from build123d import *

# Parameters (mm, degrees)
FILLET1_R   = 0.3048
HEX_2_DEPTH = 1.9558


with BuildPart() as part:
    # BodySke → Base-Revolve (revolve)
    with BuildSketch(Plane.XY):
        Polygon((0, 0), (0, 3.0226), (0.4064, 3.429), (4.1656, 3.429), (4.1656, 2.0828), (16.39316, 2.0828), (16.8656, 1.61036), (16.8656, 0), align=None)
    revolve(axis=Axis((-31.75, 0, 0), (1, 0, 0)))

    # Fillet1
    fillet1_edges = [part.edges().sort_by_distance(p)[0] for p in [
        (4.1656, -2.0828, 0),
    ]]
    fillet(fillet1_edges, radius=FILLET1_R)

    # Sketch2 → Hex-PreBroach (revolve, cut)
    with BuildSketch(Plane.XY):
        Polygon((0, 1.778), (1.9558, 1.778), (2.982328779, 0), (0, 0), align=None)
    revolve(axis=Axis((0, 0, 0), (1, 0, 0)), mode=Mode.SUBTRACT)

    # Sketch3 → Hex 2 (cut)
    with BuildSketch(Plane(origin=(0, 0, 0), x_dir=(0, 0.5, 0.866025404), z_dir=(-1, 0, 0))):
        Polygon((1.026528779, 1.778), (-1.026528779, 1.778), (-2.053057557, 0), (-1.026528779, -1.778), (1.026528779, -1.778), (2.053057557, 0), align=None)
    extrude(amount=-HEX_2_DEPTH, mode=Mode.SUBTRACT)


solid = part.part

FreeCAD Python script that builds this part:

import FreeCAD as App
import Part
import Sketcher
Q = App.Units.Quantity


def edges_at(feature, points):
    """Names of the edges that pass closest to the given points."""
    edges = feature.Shape.Edges
    near = lambda p: min(range(len(edges)), key=lambda i: edges[i].distToShape(Part.Vertex(*p))[0])
    return sorted({f"Edge{near(p) + 1}" for p in points})


def add_polygon(sketch, points):
    """Adds a closed chain of lines whose ends are joined by coincident constraints."""
    first, n = sketch.GeometryCount, len(points)
    for a, b in zip(points, points[1:] + points[:1]):
        sketch.addGeometry(Part.LineSegment(App.Vector(*a, 0), App.Vector(*b, 0)), False)
    for i in range(n):
        sketch.addConstraint(Sketcher.Constraint("Coincident", first + i, 2, first + (i + 1) % n, 1))

doc = App.newDocument("Part")
body = doc.addObject("PartDesign::Body", "Body")

sketch1 = doc.addObject("Sketcher::SketchObject", "Sketch")
body.addObject(sketch1)
sketch1.AttachmentSupport = (doc.XY_Plane, [""])
sketch1.MapMode = "FlatFace"
add_polygon(sketch1, [(0, 3.0226), (0, 0), (16.8656, 0), (16.8656, 1.61036), (16.39316, 2.0828), (4.1656, 2.0828), (4.1656, 3.429), (0.4064, 3.429)])
sketch1.addConstraint([
    Sketcher.Constraint("Vertical", 0),
    Sketcher.Constraint("Horizontal", 1),
    Sketcher.Constraint("Vertical", 2),
    Sketcher.Constraint("Horizontal", 4),
    Sketcher.Constraint("Vertical", 5),
    Sketcher.Constraint("Horizontal", 6),
    Sketcher.Constraint("Coincident", 0, 2, -1, 1),
    Sketcher.Constraint("Perpendicular", 3, 7),
    Sketcher.Constraint("Angle", 3, Q("135 deg")),
    Sketcher.Constraint("DistanceX", 4, 2, 2, 2, Q("0.5 in")),
    Sketcher.Constraint("DistanceX", 1, 1, 1, 2, Q("0.664 in")),
    Sketcher.Constraint("DistanceX", 6, 2, 6, 1, Q("0.148 in")),
    Sketcher.Constraint("DistanceY", 0, 2, 0, 1, Q("0.119 in")),
    Sketcher.Constraint("DistanceY", 5, 1, 5, 2, Q("0.053 in")),
    Sketcher.Constraint("DistanceX", 4, 2, 4, 1, Q("0.4814 in")),
])
revolution = doc.addObject("PartDesign::Revolution", "Revolution")
body.addObject(revolution)
revolution.Profile = sketch1
revolution.ReferenceAxis = (sketch1, ["H_Axis"])
revolution.Angle = 360
doc.recompute()

fillet = doc.addObject("PartDesign::Fillet", "Fillet")
body.addObject(fillet)
fillet.Base = (revolution, edges_at(revolution, [(4.166, -2.083, 0)]))
fillet.Radius = Q("0.012 in")

sketch2 = doc.addObject("Sketcher::SketchObject", "Sketch001")
body.addObject(sketch2)
sketch2.AttachmentSupport = (doc.XY_Plane, [""])
sketch2.MapMode = "FlatFace"
add_polygon(sketch2, [(1.9558, 1.778), (0, 1.778), (0, 0), (2.982329, 0)])
sketch2.addConstraint([
    Sketcher.Constraint("Horizontal", 0),
    Sketcher.Constraint("Vertical", 1),
    Sketcher.Constraint("Horizontal", 2),
    Sketcher.Constraint("Coincident", 1, 2, -1, 1),
    Sketcher.Constraint("Angle", 3, Q("120 deg")),
    Sketcher.Constraint("DistanceY", 1, 2, 1, 1, Q("0.07 in")),
    Sketcher.Constraint("DistanceX", 0, 2, 0, 1, Q("0.077 in")),
])
groove = doc.addObject("PartDesign::Groove", "Groove")
body.addObject(groove)
groove.Profile = sketch2
groove.ReferenceAxis = (sketch2, ["H_Axis"])
groove.Angle = 360

sketch3 = doc.addObject("Sketcher::SketchObject", "Sketch002")
body.addObject(sketch3)
sketch3.AttachmentSupport = (doc.YZ_Plane, [""])
sketch3.MapMode = "FlatFace"
add_polygon(sketch3, [(2.053058, 0), (1.026529, -1.778), (-1.026529, -1.778), (-2.053058, 0), (-1.026529, 1.778), (1.026529, 1.778)])
sketch3.addConstraint([
    Sketcher.Constraint("Horizontal", 1),
    Sketcher.Constraint("Horizontal", 4),
    Sketcher.Constraint("Symmetric", 0, 2, 3, 2, -1, 1),
    Sketcher.Constraint("Symmetric", 2, 2, 5, 2, -1, 1),
    Sketcher.Constraint("PointOnObject", 2, 2, -1),
    Sketcher.Constraint("Parallel", 2, 5),
    Sketcher.Constraint("Vertical", 1, 2, 3, 2),
    Sketcher.Constraint("Angle", 0, Q("-120 deg")),
    Sketcher.Constraint("DistanceY", 0, 2, -1, 1, Q("0.07 in")),
    Sketcher.Constraint("DistanceX", 1, 2, 1, 1, 2.053058),
])
pocket1 = doc.addObject("PartDesign::Pocket", "Pocket")
body.addObject(pocket1)
pocket1.Profile = sketch3
pocket1.Length = Q("0.077 in")
pocket1.Reversed = True

doc.recompute()
